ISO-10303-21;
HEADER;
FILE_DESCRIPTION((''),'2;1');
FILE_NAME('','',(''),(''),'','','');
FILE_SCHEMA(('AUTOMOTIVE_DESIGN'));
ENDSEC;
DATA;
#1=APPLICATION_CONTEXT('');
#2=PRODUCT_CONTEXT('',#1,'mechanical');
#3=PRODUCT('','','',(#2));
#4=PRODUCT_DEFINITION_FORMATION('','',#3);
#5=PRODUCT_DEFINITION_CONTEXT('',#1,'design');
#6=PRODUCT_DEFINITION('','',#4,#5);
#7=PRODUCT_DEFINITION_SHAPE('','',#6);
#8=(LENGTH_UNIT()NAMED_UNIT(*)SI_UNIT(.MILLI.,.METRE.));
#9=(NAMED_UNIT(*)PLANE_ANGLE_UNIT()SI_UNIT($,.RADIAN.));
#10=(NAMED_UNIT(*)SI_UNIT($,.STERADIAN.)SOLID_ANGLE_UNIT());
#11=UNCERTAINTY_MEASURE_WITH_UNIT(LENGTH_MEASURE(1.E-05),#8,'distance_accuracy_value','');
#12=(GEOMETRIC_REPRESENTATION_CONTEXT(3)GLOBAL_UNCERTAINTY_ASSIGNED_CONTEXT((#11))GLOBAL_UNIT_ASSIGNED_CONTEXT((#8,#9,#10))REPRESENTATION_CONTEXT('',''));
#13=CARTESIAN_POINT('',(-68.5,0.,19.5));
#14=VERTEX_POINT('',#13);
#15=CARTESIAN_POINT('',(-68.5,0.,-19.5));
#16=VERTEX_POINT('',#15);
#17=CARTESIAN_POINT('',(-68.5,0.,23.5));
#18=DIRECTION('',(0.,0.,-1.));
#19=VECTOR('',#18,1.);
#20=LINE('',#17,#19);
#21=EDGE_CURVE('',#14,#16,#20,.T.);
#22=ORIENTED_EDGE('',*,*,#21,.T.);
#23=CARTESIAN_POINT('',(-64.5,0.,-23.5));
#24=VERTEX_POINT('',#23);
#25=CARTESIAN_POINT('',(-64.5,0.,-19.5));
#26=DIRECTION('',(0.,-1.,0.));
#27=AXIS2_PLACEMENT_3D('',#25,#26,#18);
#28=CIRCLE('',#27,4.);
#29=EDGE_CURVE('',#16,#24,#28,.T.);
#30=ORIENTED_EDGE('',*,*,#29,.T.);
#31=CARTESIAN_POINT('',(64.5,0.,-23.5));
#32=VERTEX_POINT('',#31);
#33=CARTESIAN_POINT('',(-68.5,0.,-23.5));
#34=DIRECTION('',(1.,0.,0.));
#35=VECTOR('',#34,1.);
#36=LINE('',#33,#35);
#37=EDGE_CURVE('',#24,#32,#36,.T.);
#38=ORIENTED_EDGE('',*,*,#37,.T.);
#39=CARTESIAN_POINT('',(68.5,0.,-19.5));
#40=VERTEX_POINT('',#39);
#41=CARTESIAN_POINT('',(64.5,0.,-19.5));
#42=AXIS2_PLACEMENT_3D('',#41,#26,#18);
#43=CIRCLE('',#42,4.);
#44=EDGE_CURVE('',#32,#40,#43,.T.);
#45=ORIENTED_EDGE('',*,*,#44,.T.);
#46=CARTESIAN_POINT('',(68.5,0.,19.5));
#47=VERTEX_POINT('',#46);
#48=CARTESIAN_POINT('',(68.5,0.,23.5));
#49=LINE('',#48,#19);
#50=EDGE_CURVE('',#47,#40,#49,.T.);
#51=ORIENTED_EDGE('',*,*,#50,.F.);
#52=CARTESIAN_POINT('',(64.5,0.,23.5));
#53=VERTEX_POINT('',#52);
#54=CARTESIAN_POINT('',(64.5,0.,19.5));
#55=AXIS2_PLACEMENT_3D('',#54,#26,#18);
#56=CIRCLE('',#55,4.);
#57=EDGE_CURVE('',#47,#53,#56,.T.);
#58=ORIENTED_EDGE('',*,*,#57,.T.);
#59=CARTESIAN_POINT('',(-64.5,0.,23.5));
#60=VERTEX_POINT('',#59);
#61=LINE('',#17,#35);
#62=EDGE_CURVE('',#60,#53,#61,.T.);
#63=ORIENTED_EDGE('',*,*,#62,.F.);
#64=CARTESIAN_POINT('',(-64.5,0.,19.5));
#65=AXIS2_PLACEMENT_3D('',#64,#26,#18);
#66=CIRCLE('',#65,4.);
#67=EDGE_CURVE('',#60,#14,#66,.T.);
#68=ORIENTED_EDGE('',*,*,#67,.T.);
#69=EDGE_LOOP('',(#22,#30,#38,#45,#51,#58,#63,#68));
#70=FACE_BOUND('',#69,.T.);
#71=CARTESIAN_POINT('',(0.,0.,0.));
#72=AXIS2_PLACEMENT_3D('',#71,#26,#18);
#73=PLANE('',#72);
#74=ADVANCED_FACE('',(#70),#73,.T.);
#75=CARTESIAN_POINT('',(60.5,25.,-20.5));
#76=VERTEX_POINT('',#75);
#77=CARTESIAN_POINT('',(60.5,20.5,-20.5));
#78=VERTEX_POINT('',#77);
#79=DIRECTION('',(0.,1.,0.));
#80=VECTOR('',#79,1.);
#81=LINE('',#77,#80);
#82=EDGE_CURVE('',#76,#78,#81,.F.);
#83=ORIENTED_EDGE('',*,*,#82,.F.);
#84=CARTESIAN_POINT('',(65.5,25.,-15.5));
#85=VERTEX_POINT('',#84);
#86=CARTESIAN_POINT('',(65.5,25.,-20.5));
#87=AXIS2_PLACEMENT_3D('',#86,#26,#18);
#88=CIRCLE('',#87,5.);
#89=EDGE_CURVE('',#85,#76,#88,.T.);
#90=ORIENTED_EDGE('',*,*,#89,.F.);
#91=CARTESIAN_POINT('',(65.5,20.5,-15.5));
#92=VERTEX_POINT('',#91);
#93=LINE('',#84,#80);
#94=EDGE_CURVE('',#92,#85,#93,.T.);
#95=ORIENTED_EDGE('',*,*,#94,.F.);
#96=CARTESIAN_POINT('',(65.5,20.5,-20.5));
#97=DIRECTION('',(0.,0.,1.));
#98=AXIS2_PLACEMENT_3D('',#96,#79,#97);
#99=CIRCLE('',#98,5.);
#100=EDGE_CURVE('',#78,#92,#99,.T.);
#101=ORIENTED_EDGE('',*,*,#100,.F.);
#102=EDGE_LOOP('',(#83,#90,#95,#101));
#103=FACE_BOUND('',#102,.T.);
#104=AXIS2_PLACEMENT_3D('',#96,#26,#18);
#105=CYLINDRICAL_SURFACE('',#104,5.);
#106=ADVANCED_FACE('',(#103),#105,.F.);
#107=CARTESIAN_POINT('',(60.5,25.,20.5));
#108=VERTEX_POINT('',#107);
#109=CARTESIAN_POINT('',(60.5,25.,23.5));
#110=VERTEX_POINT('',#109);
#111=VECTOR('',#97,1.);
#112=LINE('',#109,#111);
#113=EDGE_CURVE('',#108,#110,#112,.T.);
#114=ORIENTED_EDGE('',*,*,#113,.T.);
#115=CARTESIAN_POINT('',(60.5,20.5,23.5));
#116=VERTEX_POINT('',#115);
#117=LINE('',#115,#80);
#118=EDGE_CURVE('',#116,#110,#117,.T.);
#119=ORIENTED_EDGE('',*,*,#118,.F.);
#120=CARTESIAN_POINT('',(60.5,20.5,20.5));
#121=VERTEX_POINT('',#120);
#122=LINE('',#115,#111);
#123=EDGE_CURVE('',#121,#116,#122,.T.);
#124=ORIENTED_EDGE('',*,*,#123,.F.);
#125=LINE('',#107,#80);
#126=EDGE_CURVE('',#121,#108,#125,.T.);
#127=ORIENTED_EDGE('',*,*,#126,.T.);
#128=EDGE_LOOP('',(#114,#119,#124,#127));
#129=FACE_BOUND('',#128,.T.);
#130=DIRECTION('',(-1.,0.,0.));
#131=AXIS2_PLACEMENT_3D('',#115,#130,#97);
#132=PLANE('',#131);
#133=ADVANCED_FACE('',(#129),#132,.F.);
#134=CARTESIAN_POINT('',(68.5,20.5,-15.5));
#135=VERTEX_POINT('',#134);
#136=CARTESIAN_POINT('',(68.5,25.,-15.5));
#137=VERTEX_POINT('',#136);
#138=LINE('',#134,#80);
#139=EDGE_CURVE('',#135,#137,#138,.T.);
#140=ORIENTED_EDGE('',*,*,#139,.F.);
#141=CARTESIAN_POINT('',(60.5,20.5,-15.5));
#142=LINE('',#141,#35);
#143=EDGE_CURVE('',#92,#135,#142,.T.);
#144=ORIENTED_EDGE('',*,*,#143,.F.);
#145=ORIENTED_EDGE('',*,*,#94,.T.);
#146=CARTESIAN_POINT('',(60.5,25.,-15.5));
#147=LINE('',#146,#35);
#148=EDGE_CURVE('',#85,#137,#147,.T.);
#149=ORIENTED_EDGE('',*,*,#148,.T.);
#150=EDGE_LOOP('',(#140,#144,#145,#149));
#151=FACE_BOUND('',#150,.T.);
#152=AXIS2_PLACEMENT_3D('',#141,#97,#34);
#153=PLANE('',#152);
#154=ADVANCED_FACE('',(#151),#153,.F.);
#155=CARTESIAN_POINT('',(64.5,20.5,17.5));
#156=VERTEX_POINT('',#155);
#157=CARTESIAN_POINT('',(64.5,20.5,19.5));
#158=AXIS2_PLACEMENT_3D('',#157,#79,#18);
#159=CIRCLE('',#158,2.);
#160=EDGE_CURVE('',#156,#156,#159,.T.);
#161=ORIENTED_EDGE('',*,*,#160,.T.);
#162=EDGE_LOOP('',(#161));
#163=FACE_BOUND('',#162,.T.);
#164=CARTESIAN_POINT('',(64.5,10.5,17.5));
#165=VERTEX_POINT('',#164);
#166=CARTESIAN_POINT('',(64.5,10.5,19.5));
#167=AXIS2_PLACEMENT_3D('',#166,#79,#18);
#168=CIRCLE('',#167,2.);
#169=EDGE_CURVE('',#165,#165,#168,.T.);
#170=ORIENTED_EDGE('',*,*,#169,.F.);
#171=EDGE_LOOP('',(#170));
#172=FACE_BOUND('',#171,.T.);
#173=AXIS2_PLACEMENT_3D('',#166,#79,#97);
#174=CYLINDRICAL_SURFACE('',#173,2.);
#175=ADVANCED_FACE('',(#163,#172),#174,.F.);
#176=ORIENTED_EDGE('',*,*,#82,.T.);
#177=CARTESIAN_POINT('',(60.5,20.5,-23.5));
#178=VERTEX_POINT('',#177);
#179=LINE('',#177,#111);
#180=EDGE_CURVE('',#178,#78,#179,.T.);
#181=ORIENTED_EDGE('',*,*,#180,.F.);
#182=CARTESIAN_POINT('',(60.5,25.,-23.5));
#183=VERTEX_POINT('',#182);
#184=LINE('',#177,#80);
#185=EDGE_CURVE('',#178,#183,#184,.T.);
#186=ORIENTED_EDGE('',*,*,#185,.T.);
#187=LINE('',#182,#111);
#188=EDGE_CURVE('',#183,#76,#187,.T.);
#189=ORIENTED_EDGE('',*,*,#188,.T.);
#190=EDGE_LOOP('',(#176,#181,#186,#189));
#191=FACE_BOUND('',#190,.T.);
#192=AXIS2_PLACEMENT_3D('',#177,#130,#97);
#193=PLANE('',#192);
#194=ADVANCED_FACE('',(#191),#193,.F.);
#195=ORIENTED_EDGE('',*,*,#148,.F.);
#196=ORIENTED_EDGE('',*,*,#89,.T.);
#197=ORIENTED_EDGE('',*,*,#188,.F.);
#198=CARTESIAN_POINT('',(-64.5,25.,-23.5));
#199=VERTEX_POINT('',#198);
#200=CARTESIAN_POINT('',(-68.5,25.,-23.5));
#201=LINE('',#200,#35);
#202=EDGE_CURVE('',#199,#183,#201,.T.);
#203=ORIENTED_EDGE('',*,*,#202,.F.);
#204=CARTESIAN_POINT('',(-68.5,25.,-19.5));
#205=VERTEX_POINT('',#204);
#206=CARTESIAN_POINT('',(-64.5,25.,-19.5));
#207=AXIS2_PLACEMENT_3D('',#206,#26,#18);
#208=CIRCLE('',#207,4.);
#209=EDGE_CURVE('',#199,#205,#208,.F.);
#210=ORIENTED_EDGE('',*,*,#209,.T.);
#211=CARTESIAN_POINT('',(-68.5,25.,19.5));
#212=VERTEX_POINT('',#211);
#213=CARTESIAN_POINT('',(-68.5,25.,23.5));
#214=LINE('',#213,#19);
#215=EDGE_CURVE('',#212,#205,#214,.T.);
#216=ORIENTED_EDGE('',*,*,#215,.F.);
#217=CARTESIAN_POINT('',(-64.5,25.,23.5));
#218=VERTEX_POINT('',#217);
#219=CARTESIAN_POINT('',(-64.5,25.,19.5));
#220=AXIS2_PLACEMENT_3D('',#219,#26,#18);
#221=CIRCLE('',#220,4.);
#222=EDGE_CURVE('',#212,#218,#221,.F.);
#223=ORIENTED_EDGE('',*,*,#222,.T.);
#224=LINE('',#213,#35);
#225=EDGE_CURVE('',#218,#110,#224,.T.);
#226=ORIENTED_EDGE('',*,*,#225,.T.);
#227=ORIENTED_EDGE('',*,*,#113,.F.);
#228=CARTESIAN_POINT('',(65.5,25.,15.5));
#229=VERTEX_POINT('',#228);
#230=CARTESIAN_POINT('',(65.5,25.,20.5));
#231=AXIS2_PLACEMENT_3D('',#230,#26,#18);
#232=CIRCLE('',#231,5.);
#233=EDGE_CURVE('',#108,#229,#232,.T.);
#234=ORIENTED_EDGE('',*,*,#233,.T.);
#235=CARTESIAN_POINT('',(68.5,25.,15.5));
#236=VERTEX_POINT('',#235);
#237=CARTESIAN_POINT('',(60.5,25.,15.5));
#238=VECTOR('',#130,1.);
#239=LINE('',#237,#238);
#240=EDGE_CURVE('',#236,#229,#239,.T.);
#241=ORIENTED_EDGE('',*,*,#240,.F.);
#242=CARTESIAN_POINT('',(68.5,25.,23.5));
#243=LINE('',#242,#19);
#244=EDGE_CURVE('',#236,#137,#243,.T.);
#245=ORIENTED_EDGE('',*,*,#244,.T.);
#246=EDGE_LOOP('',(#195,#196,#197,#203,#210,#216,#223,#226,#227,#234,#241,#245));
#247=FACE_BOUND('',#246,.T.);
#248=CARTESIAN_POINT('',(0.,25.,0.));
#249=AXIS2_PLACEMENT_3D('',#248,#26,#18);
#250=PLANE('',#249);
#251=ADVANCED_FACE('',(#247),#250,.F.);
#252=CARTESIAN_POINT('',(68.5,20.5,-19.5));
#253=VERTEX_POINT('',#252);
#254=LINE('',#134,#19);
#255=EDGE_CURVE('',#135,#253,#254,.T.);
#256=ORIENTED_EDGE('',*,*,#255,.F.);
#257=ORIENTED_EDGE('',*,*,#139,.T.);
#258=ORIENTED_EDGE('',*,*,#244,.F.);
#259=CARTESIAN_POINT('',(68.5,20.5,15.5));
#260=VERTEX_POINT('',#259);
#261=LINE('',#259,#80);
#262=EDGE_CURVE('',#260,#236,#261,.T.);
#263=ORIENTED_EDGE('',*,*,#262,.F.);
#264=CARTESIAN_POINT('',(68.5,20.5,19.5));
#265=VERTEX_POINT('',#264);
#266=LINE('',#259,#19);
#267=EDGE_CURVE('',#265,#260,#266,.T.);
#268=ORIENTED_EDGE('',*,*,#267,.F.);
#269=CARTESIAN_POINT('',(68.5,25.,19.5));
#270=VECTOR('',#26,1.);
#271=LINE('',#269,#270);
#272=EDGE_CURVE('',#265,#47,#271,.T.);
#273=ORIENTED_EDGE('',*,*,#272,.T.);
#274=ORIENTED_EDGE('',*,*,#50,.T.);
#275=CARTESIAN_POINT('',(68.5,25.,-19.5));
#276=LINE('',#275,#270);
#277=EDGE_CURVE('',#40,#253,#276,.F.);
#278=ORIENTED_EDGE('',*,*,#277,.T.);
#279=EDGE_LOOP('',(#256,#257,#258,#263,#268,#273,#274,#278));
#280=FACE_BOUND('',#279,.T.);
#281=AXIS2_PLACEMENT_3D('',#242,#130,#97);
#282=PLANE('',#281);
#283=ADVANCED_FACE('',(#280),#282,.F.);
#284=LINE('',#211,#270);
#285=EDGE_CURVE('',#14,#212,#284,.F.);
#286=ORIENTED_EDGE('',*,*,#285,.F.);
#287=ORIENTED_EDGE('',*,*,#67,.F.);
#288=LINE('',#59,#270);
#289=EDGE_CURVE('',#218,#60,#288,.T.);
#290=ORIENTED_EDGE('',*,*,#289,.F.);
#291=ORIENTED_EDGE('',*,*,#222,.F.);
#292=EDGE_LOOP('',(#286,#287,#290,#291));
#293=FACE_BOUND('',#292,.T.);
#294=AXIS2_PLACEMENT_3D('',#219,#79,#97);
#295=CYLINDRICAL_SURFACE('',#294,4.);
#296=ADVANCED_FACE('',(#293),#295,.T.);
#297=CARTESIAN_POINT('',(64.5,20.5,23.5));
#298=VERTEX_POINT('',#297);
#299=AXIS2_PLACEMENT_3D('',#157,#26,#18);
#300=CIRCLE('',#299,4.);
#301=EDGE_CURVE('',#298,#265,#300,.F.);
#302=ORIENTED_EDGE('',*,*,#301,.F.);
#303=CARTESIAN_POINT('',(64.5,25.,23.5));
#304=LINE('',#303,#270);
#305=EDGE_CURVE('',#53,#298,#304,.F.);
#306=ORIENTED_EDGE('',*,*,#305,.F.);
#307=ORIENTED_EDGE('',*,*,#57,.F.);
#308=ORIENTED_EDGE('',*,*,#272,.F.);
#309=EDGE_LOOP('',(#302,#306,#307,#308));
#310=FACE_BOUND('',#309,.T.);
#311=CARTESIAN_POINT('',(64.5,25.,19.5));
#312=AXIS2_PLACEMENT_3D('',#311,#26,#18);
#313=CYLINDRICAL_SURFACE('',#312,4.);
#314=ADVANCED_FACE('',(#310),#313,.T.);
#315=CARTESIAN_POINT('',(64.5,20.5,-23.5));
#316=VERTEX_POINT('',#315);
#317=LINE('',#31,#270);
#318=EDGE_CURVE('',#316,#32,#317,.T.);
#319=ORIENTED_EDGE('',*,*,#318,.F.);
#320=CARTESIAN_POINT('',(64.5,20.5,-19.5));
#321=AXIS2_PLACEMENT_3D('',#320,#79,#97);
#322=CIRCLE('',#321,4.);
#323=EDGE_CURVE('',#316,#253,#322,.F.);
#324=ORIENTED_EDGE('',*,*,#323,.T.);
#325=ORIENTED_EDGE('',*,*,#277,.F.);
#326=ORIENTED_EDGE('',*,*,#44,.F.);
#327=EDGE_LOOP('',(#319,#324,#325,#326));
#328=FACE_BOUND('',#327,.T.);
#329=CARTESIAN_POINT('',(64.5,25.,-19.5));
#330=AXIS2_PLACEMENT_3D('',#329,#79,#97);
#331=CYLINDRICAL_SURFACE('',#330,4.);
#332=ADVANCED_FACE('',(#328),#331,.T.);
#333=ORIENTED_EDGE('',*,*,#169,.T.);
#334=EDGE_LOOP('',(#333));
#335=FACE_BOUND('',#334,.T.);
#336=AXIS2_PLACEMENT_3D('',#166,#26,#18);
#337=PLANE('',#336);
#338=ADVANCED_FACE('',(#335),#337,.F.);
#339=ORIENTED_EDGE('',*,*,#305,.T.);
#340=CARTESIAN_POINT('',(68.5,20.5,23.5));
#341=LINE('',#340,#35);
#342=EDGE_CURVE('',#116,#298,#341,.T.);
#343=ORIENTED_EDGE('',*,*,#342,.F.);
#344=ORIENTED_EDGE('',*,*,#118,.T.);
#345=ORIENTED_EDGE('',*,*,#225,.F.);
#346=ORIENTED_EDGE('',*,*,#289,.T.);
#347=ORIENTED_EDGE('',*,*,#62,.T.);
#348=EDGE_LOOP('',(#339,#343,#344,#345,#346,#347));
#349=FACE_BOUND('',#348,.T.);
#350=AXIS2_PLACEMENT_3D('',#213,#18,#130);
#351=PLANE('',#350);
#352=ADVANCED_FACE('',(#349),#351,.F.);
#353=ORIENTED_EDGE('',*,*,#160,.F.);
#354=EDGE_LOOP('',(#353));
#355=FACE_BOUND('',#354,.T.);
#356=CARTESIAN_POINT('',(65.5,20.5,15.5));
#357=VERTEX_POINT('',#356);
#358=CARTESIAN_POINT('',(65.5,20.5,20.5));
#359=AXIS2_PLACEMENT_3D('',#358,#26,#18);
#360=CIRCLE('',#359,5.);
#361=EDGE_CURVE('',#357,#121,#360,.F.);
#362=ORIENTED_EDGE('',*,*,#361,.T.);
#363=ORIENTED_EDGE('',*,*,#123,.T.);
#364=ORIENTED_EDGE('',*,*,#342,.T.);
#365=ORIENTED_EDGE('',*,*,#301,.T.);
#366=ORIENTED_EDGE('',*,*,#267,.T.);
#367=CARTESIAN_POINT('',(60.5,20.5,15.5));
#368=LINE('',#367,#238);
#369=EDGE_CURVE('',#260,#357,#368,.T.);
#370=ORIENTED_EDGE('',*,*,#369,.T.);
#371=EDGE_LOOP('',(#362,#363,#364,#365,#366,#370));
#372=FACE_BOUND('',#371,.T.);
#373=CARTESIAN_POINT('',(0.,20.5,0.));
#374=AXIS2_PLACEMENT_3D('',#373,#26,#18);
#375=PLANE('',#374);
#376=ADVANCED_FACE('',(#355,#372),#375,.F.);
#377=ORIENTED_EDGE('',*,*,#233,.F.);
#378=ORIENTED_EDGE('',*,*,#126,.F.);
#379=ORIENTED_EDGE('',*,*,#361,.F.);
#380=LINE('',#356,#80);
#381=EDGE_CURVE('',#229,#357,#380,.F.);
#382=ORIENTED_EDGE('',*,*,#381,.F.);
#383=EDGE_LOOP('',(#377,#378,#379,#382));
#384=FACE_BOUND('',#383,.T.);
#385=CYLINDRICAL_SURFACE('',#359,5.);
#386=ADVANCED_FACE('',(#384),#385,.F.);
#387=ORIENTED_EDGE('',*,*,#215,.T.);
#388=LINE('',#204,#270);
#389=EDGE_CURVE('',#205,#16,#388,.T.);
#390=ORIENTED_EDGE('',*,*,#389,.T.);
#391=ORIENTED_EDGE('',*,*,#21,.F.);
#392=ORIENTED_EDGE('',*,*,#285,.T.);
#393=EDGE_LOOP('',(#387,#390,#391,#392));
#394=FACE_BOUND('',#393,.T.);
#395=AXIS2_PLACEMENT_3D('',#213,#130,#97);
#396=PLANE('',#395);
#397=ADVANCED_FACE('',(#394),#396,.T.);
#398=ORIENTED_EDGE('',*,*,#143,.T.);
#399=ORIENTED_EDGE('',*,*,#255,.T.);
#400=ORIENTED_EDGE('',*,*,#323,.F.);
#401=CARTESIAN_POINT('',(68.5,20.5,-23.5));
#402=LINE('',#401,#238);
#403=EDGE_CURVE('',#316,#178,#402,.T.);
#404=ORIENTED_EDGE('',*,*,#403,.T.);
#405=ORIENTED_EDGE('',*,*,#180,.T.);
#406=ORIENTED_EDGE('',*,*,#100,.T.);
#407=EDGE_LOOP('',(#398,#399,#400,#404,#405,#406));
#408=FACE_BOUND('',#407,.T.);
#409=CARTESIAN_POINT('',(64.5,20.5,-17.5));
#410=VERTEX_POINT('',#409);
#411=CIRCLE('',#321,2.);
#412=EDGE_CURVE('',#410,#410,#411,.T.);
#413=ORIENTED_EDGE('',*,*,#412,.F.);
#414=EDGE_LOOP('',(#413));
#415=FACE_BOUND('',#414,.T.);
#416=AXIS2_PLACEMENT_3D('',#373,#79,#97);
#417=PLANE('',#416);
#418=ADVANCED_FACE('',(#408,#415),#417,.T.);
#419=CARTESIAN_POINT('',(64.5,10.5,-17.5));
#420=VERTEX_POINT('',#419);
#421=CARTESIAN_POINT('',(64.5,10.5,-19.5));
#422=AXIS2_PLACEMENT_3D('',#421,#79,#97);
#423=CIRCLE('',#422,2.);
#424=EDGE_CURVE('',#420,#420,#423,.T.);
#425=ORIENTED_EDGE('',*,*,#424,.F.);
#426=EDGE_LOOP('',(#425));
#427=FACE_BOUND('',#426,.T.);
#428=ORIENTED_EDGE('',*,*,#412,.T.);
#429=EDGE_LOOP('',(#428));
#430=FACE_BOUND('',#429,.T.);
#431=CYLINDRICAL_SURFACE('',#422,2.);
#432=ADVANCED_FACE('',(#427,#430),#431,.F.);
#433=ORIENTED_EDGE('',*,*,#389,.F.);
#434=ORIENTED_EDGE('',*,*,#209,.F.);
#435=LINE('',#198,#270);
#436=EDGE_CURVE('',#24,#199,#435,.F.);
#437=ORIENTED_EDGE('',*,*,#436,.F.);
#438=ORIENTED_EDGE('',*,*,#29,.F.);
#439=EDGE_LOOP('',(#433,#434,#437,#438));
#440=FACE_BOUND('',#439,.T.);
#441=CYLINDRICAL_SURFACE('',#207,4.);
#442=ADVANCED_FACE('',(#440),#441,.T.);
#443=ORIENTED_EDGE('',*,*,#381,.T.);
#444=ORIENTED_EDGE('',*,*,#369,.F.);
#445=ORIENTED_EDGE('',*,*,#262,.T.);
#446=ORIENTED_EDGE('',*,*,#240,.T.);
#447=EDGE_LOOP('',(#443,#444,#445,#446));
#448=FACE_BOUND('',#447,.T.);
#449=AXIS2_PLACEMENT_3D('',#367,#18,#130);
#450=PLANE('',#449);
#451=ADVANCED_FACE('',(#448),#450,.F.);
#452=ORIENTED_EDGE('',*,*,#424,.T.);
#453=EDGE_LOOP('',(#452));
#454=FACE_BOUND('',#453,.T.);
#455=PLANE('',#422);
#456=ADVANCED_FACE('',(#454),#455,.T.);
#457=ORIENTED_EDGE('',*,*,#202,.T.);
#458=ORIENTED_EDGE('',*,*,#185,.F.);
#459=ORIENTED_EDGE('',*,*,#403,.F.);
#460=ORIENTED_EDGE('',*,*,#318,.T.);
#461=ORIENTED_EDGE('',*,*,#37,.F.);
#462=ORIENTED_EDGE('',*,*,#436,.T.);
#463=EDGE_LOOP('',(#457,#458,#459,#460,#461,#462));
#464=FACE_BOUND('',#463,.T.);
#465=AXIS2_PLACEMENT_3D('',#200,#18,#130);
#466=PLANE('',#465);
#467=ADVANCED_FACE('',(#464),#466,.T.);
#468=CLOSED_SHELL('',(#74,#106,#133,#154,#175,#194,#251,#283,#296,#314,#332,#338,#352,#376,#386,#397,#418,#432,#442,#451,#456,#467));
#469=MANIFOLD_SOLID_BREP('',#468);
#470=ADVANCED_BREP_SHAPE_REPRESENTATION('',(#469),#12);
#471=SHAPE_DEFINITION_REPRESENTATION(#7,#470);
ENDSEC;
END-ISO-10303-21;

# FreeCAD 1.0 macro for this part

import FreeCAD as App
import Part
import Sketcher
from FreeCAD import Vector


def edges_at(feature, points):
    """Names of the edges that pass closest to the given points."""
    edges = feature.Shape.Edges
    near = lambda p: min(range(len(edges)), key=lambda i: edges[i].distToShape(Part.Vertex(*p))[0])
    return sorted({f"Edge{near(p) + 1}" for p in points})

doc = App.newDocument("Part")
body = doc.addObject("PartDesign::Body", "Body")

# Sketch on XZ plane
sketch1 = body.newObject("Sketcher::SketchObject", "Sketch")
sketch1.AttachmentSupport = (doc.getObject("XZ_Plane"), [""])
sketch1.MapMode = "FlatFace"
sketch1.addGeometry([
    Part.LineSegment(Vector(-68.5, -23.5, 0), Vector(-68.5, 23.5, 0)),
    Part.LineSegment(Vector(-68.5, 23.5, 0), Vector(68.5, 23.5, 0)),
    Part.LineSegment(Vector(68.5, 23.5, 0), Vector(68.5, -23.5, 0)),
    Part.LineSegment(Vector(68.5, -23.5, 0), Vector(-68.5, -23.5, 0)),
], False)
sketch1.addConstraint([
    Sketcher.Constraint("Coincident", 0, 2, 1, 1),
    Sketcher.Constraint("Coincident", 1, 2, 2, 1),
    Sketcher.Constraint("Coincident", 2, 2, 3, 1),
    Sketcher.Constraint("Coincident", 3, 2, 0, 1),
    Sketcher.Constraint("Vertical", 0),
    Sketcher.Constraint("Horizontal", 1),
    Sketcher.Constraint("Vertical", 2),
    Sketcher.Constraint("Horizontal", 3),
    Sketcher.Constraint("Symmetric", 0, 2, 2, 2, -1, 1),
    Sketcher.Constraint("DistanceX", 1, 1, 1, 2, 137.0),
    Sketcher.Constraint("DistanceY", 0, 1, 0, 2, 47.0),
])
pad1 = body.newObject("PartDesign::Pad", "Pad")
pad1.Profile = sketch1
pad1.Length = 25
pad1.Reversed = True
doc.recompute()

fillet = body.newObject("PartDesign::Fillet", "Fillet")
fillet.Base = (pad1, edges_at(pad1, [
    (-68.5, 12.5, 23.5),
    (68.5, 12.5, 23.5),
    (68.5, 12.5, -23.5),
    (-68.5, 12.5, -23.5),
]))
fillet.Radius = 4

# Sketch on XZ plane
sketch2 = body.newObject("Sketcher::SketchObject", "Sketch001")
sketch2.AttachmentSupport = (doc.getObject("XZ_Plane"), [""])
sketch2.MapMode = "FlatFace"
sketch2.AttachmentOffset = App.Placement(Vector(0, 0, -25), App.Rotation())
sketch2.addGeometry([
    Part.LineSegment(Vector(60.5, -23.5, 0), Vector(60.5, -15.5, 0)),  # 0
    Part.LineSegment(Vector(60.5, -15.5, 0), Vector(68.5, -15.5, 0)),  # 1
    Part.LineSegment(Vector(68.5, -15.5, 0), Vector(68.5, -23.5, 0)),  # 2
    Part.LineSegment(Vector(68.5, -23.5, 0), Vector(60.5, -23.5, 0)),  # 3
    Part.LineSegment(Vector(60.5, 15.5, 0), Vector(60.5, 23.5, 0)),  # 4
    Part.LineSegment(Vector(60.5, 23.5, 0), Vector(68.5, 23.5, 0)),  # 5
    Part.LineSegment(Vector(68.5, 23.5, 0), Vector(68.5, 15.5, 0)),  # 6
    Part.LineSegment(Vector(68.5, 15.5, 0), Vector(60.5, 15.5, 0)),  # 7
], False)
sketch2.addConstraint([
    Sketcher.Constraint("Coincident", 0, 2, 1, 1),
    Sketcher.Constraint("Coincident", 1, 2, 2, 1),
    Sketcher.Constraint("Coincident", 2, 2, 3, 1),
    Sketcher.Constraint("Coincident", 3, 2, 0, 1),
    Sketcher.Constraint("Coincident", 4, 2, 5, 1),
    Sketcher.Constraint("Coincident", 5, 2, 6, 1),
    Sketcher.Constraint("Coincident", 6, 2, 7, 1),
    Sketcher.Constraint("Coincident", 7, 2, 4, 1),
    Sketcher.Constraint("Vertical", 0),
    Sketcher.Constraint("Horizontal", 1),
    Sketcher.Constraint("Vertical", 2),
    Sketcher.Constraint("Horizontal", 3),
    Sketcher.Constraint("Vertical", 4),
    Sketcher.Constraint("Horizontal", 5),
    Sketcher.Constraint("Vertical", 6),
    Sketcher.Constraint("Horizontal", 7),
    Sketcher.Constraint("Symmetric", 3, 2, 4, 2, -1),
    Sketcher.Constraint("Symmetric", 1, 2, 6, 2, -1),
    Sketcher.Constraint("Equal", 7, 0),
    Sketcher.Constraint("DistanceX", 1, 1, 1, 2, 8.0),
    Sketcher.Constraint("DistanceY", 0, 2, 4, 2, 39.0),
    Sketcher.Constraint("DistanceX", -1, 1, 0, 2, 60.5),
])
pocket1 = body.newObject("PartDesign::Pocket", "Pocket")
pocket1.Profile = sketch2
pocket1.Length = 4.5
pocket1.Reversed = True
doc.recompute()

fillet2 = body.newObject("PartDesign::Fillet", "Fillet001")
fillet2.Base = (pocket1, edges_at(pocket1, [(60.5, 22.75, -15.5), (60.5, 22.75, 15.5)]))
fillet2.Radius = 5

# Sketch on XZ plane
sketch3 = body.newObject("Sketcher::SketchObject", "Sketch002")
sketch3.AttachmentSupport = (doc.getObject("XZ_Plane"), [""])
sketch3.MapMode = "FlatFace"
sketch3.AttachmentOffset = App.Placement(Vector(0, 0, -20.5), App.Rotation())
sketch3.addGeometry([
    Part.Circle(Vector(64.5, -19.5, 0), Vector(0, 0, 1), 2),
    Part.Circle(Vector(64.5, 19.5, 0), Vector(0, 0, 1), 2),
], False)
sketch3.addConstraint([
    Sketcher.Constraint("Equal", 0, 1),
    Sketcher.Constraint("Symmetric", 0, 3, 1, 3, -1),
    Sketcher.Constraint("Diameter", 0, 4.0),
    Sketcher.Constraint("DistanceY", 0, 3, 1, 3, 39.0),
    Sketcher.Constraint("DistanceX", -1, 1, 0, 3, 64.5),
])
pocket2 = body.newObject("PartDesign::Pocket", "Pocket001")
pocket2.Profile = sketch3
pocket2.Length = 10
pocket2.Reversed = True

doc.recompute()
